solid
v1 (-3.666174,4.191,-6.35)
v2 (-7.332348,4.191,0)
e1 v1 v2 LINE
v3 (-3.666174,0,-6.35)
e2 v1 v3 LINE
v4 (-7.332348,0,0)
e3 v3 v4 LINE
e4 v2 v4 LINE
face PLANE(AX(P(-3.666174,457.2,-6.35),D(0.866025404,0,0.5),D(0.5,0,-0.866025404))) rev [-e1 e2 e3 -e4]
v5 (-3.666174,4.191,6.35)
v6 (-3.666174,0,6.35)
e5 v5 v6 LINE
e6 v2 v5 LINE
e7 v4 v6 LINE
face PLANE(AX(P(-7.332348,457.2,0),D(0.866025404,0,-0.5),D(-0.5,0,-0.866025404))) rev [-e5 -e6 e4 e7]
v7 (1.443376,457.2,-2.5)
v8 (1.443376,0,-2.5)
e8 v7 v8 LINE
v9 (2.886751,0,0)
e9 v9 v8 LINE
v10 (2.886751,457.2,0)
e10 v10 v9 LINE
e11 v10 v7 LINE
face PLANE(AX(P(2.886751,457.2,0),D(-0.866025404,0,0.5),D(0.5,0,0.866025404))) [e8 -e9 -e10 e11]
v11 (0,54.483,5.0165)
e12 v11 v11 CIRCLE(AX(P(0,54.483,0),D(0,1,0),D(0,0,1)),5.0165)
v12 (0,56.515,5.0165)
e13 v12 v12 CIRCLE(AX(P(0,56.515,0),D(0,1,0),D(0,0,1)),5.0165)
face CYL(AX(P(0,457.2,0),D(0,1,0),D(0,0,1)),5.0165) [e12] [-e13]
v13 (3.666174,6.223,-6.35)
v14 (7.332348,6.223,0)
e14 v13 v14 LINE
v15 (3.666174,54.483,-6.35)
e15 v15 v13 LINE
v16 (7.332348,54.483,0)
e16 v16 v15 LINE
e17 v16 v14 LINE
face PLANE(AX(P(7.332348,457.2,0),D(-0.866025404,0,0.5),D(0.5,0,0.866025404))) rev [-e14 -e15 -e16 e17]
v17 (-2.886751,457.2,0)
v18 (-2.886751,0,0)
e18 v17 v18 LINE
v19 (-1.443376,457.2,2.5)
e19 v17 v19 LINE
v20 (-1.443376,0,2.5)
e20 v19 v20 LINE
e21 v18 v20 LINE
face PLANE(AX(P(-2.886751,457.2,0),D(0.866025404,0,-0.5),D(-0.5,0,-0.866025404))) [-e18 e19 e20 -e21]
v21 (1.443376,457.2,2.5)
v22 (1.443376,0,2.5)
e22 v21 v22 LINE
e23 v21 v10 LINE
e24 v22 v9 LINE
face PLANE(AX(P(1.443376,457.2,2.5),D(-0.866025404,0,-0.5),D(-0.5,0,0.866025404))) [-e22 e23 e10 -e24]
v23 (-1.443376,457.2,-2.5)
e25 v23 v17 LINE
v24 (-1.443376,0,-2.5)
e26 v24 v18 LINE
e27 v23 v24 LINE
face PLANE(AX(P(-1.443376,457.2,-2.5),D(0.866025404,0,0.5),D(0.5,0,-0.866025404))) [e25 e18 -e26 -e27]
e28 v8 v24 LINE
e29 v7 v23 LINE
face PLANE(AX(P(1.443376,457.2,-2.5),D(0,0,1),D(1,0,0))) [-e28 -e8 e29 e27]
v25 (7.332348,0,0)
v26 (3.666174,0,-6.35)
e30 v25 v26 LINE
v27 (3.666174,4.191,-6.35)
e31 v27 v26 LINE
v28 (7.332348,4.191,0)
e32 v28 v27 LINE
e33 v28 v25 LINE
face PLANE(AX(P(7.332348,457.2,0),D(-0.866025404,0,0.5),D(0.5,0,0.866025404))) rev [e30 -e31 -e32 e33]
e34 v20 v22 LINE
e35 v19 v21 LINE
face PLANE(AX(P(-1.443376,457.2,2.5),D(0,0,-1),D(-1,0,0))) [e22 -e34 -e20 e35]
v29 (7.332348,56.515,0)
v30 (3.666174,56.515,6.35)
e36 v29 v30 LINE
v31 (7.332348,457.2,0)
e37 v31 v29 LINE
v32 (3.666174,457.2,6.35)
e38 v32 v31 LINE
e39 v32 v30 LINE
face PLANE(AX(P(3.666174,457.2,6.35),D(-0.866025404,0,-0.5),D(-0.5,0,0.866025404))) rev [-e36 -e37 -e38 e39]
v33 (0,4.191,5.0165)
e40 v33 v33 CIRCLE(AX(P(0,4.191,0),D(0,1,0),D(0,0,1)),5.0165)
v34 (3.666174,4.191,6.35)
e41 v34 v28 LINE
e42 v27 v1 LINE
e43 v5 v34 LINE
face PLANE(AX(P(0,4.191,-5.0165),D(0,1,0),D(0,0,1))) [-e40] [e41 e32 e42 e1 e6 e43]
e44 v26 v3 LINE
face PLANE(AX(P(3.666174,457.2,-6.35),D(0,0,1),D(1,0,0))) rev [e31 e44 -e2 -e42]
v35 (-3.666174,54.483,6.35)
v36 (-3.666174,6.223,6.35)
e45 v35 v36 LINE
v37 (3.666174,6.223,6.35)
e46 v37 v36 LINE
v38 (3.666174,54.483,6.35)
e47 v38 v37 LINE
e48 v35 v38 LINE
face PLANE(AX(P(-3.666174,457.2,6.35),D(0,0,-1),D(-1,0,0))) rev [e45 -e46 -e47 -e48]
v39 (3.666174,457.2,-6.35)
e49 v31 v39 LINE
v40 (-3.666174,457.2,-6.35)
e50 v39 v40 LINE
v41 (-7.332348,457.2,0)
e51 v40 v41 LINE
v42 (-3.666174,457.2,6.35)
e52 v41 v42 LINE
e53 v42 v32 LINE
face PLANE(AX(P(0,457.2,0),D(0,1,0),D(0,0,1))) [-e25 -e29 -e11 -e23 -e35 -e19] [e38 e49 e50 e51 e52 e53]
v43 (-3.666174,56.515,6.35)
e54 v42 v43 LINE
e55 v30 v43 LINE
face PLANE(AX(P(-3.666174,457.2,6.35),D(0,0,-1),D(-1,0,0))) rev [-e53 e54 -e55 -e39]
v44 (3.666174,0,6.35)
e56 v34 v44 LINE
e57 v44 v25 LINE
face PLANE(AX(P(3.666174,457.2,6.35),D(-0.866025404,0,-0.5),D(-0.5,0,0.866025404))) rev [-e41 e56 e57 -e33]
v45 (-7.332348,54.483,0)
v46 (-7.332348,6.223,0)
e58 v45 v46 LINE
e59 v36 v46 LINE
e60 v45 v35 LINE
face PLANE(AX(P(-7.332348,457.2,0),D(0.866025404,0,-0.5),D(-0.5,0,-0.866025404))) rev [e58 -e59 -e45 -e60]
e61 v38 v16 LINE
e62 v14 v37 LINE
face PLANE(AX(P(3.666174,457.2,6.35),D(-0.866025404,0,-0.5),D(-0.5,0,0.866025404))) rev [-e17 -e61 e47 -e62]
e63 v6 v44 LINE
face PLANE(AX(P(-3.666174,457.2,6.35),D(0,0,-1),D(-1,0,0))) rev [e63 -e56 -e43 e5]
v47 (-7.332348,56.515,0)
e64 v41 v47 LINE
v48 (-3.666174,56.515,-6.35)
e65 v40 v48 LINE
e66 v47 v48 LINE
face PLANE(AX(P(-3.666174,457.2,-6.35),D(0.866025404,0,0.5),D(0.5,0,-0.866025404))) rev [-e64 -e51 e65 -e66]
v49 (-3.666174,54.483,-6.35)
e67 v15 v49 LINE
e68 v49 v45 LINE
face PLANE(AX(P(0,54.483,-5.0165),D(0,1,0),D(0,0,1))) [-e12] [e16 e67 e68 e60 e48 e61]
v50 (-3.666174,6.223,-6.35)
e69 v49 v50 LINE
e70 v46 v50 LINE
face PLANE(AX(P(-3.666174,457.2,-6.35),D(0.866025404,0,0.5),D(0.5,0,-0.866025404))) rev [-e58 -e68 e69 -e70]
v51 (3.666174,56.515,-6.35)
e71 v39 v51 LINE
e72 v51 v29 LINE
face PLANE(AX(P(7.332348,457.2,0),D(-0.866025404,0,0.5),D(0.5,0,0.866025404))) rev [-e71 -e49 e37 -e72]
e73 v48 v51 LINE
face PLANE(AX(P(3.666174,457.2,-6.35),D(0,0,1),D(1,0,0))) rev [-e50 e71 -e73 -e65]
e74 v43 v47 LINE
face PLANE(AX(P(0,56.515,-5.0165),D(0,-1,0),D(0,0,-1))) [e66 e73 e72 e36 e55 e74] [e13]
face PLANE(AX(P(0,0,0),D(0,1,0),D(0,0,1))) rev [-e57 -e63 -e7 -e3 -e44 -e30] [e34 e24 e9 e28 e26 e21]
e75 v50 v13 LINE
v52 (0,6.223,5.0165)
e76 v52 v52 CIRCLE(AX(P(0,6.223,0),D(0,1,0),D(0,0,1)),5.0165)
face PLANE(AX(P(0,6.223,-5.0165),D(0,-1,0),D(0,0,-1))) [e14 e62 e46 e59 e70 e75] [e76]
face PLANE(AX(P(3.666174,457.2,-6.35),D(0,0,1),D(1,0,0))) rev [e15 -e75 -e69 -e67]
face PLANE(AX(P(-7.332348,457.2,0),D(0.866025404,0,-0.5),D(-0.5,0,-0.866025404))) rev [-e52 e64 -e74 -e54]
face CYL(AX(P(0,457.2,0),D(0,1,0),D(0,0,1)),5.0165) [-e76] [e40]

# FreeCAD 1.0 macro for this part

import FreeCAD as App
import Part
import Sketcher
Q = App.Units.Quantity

doc = App.newDocument("Part")
body = doc.addObject("PartDesign::Body", "Body")

sketch1 = doc.addObject("Sketcher::SketchObject", "Sketch")
body.addObject(sketch1)
sketch1.AttachmentSupport = (doc.XZ_Plane, [""])
sketch1.MapMode = "FlatFace"
sketch1.addGeometry([
    Part.LineSegment(App.Vector(7.3, 0, 0), App.Vector(3.7, -6.3, 0)),
    Part.LineSegment(App.Vector(3.7, -6.3, 0), App.Vector(-3.7, -6.3, 0)),
    Part.LineSegment(App.Vector(-3.7, -6.3, 0), App.Vector(-7.3, 0, 0)),
    Part.LineSegment(App.Vector(-7.3, 0, 0), App.Vector(-3.7, 6.3, 0)),
    Part.LineSegment(App.Vector(-3.7, 6.3, 0), App.Vector(3.7, 6.3, 0)),
    Part.LineSegment(App.Vector(3.7, 6.3, 0), App.Vector(7.3, 0, 0)),
    Part.LineSegment(App.Vector(-1.4, -2.5, 0), App.Vector(1.4, -2.5, 0)),
    Part.LineSegment(App.Vector(1.4, -2.5, 0), App.Vector(2.9, 0, 0)),
    Part.LineSegment(App.Vector(2.9, 0, 0), App.Vector(1.4, 2.5, 0)),
    Part.LineSegment(App.Vector(1.4, 2.5, 0), App.Vector(-1.4, 2.5, 0)),
    Part.LineSegment(App.Vector(-1.4, 2.5, 0), App.Vector(-2.9, 0, 0)),
    Part.LineSegment(App.Vector(-2.9, 0, 0), App.Vector(-1.4, -2.5, 0)),
], False)
sketch1.addConstraint([
    Sketcher.Constraint("Coincident", 0, 2, 1, 1),
    Sketcher.Constraint("Coincident", 1, 2, 2, 1),
    Sketcher.Constraint("Coincident", 2, 2, 3, 1),
    Sketcher.Constraint("Coincident", 3, 2, 4, 1),
    Sketcher.Constraint("Coincident", 4, 2, 5, 1),
    Sketcher.Constraint("Coincident", 5, 2, 0, 1),
    Sketcher.Constraint("Coincident", 6, 2, 7, 1),
    Sketcher.Constraint("Coincident", 7, 2, 8, 1),
    Sketcher.Constraint("Coincident", 8, 2, 9, 1),
    Sketcher.Constraint("Coincident", 9, 2, 10, 1),
    Sketcher.Constraint("Coincident", 10, 2, 11, 1),
    Sketcher.Constraint("Coincident", 11, 2, 6, 1),
    Sketcher.Constraint("Horizontal", 1),
    Sketcher.Constraint("Horizontal", 4),
    Sketcher.Constraint("Horizontal", 6),
    Sketcher.Constraint("Horizontal", 9),
    Sketcher.Constraint("Symmetric", 0, 2, 3, 2, -1, 1),
    Sketcher.Constraint("Symmetric", 2, 2, 5, 2, -1, 1),
    Sketcher.Constraint("Symmetric", 6, 2, 9, 2, -1, 1),
    Sketcher.Constraint("Symmetric", 7, 2, 10, 2, -1, 1),
    Sketcher.Constraint("PointOnObject", 2, 2, -1),
    Sketcher.Constraint("PointOnObject", 7, 2, -1),
    Sketcher.Constraint("Parallel", 2, 5),
    Sketcher.Constraint("Parallel", 3, 7),
    Sketcher.Constraint("Parallel", 5, 8),
    Sketcher.Constraint("Parallel", 8, 11),
    Sketcher.Constraint("Vertical", 1, 2, 3, 2),
    Sketcher.Constraint("Angle", 0, Q("-120 deg")),
    Sketcher.Constraint("DistanceY", 1, 2, 3, 2, Q("0.5 in")),
    Sketcher.Constraint("DistanceX", 1, 2, 1, 1, Q("7.332348 mm")),
    Sketcher.Constraint("DistanceX", 6, 1, 6, 2, Q("2.886751 mm")),
    Sketcher.Constraint("DistanceY", 6, 2, -1, 1, Q("2.5 mm")),
])
pad1 = doc.addObject("PartDesign::Pad", "Pad")
body.addObject(pad1)
pad1.Profile = sketch1
pad1.Length = Q("18 in")
pad1.Reversed = True

sketch2 = doc.addObject("Sketcher::SketchObject", "Sketch001")
body.addObject(sketch2)
sketch2.AttachmentSupport = (doc.YZ_Plane, [""])
sketch2.MapMode = "FlatFace"
sketch2.addGeometry([
    Part.LineSegment(App.Vector(56.5, -5, 0), App.Vector(54.5, -5, 0)),
    Part.LineSegment(App.Vector(54.5, -5, 0), App.Vector(54.5, -7.6, 0)),
    Part.LineSegment(App.Vector(54.5, -7.6, 0), App.Vector(56.5, -7.6, 0)),
    Part.LineSegment(App.Vector(56.5, -7.6, 0), App.Vector(56.5, -5, 0)),
    Part.LineSegment(App.Vector(6.2, -5, 0), App.Vector(4.2, -5, 0)),
    Part.LineSegment(App.Vector(4.2, -5, 0), App.Vector(4.2, -7.6, 0)),
    Part.LineSegment(App.Vector(4.2, -7.6, 0), App.Vector(6.2, -7.6, 0)),
    Part.LineSegment(App.Vector(6.2, -7.6, 0), App.Vector(6.2, -5, 0)),
], False)
sketch2.addConstraint([
    Sketcher.Constraint("Coincident", 0, 2, 1, 1),
    Sketcher.Constraint("Coincident", 1, 2, 2, 1),
    Sketcher.Constraint("Coincident", 2, 2, 3, 1),
    Sketcher.Constraint("Coincident", 3, 2, 0, 1),
    Sketcher.Constraint("Coincident", 4, 2, 5, 1),
    Sketcher.Constraint("Coincident", 5, 2, 6, 1),
    Sketcher.Constraint("Coincident", 6, 2, 7, 1),
    Sketcher.Constraint("Coincident", 7, 2, 4, 1),
    Sketcher.Constraint("Horizontal", 0),
    Sketcher.Constraint("Vertical", 1),
    Sketcher.Constraint("Horizontal", 2),
    Sketcher.Constraint("Vertical", 3),
    Sketcher.Constraint("Horizontal", 4),
    Sketcher.Constraint("Vertical", 5),
    Sketcher.Constraint("Horizontal", 6),
    Sketcher.Constraint("Vertical", 7),
    Sketcher.Constraint("Horizontal", 3, 2, 4, 2),
    Sketcher.Constraint("Horizontal", 2, 2, 5, 2),
    Sketcher.Constraint("Equal", 2, 4),
    Sketcher.Constraint("DistanceY", 1, 2, 1, 1, Q("0.1 in")),
    Sketcher.Constraint("DistanceX", 0, 2, 0, 1, Q("0.08 in")),
    Sketcher.Constraint("DistanceX", 6, 2, 1, 2, Q("1.9 in")),
    Sketcher.Constraint("DistanceX", -1, 1, 0, 2, Q("2.145 in")),
    Sketcher.Constraint("DistanceY", 0, 2, -1, 1, Q("0.1975 in")),
])
groove = doc.addObject("PartDesign::Groove", "Groove")
body.addObject(groove)
groove.Profile = sketch2
groove.ReferenceAxis = (sketch2, ["H_Axis"])
groove.Angle = 360

doc.recompute()
